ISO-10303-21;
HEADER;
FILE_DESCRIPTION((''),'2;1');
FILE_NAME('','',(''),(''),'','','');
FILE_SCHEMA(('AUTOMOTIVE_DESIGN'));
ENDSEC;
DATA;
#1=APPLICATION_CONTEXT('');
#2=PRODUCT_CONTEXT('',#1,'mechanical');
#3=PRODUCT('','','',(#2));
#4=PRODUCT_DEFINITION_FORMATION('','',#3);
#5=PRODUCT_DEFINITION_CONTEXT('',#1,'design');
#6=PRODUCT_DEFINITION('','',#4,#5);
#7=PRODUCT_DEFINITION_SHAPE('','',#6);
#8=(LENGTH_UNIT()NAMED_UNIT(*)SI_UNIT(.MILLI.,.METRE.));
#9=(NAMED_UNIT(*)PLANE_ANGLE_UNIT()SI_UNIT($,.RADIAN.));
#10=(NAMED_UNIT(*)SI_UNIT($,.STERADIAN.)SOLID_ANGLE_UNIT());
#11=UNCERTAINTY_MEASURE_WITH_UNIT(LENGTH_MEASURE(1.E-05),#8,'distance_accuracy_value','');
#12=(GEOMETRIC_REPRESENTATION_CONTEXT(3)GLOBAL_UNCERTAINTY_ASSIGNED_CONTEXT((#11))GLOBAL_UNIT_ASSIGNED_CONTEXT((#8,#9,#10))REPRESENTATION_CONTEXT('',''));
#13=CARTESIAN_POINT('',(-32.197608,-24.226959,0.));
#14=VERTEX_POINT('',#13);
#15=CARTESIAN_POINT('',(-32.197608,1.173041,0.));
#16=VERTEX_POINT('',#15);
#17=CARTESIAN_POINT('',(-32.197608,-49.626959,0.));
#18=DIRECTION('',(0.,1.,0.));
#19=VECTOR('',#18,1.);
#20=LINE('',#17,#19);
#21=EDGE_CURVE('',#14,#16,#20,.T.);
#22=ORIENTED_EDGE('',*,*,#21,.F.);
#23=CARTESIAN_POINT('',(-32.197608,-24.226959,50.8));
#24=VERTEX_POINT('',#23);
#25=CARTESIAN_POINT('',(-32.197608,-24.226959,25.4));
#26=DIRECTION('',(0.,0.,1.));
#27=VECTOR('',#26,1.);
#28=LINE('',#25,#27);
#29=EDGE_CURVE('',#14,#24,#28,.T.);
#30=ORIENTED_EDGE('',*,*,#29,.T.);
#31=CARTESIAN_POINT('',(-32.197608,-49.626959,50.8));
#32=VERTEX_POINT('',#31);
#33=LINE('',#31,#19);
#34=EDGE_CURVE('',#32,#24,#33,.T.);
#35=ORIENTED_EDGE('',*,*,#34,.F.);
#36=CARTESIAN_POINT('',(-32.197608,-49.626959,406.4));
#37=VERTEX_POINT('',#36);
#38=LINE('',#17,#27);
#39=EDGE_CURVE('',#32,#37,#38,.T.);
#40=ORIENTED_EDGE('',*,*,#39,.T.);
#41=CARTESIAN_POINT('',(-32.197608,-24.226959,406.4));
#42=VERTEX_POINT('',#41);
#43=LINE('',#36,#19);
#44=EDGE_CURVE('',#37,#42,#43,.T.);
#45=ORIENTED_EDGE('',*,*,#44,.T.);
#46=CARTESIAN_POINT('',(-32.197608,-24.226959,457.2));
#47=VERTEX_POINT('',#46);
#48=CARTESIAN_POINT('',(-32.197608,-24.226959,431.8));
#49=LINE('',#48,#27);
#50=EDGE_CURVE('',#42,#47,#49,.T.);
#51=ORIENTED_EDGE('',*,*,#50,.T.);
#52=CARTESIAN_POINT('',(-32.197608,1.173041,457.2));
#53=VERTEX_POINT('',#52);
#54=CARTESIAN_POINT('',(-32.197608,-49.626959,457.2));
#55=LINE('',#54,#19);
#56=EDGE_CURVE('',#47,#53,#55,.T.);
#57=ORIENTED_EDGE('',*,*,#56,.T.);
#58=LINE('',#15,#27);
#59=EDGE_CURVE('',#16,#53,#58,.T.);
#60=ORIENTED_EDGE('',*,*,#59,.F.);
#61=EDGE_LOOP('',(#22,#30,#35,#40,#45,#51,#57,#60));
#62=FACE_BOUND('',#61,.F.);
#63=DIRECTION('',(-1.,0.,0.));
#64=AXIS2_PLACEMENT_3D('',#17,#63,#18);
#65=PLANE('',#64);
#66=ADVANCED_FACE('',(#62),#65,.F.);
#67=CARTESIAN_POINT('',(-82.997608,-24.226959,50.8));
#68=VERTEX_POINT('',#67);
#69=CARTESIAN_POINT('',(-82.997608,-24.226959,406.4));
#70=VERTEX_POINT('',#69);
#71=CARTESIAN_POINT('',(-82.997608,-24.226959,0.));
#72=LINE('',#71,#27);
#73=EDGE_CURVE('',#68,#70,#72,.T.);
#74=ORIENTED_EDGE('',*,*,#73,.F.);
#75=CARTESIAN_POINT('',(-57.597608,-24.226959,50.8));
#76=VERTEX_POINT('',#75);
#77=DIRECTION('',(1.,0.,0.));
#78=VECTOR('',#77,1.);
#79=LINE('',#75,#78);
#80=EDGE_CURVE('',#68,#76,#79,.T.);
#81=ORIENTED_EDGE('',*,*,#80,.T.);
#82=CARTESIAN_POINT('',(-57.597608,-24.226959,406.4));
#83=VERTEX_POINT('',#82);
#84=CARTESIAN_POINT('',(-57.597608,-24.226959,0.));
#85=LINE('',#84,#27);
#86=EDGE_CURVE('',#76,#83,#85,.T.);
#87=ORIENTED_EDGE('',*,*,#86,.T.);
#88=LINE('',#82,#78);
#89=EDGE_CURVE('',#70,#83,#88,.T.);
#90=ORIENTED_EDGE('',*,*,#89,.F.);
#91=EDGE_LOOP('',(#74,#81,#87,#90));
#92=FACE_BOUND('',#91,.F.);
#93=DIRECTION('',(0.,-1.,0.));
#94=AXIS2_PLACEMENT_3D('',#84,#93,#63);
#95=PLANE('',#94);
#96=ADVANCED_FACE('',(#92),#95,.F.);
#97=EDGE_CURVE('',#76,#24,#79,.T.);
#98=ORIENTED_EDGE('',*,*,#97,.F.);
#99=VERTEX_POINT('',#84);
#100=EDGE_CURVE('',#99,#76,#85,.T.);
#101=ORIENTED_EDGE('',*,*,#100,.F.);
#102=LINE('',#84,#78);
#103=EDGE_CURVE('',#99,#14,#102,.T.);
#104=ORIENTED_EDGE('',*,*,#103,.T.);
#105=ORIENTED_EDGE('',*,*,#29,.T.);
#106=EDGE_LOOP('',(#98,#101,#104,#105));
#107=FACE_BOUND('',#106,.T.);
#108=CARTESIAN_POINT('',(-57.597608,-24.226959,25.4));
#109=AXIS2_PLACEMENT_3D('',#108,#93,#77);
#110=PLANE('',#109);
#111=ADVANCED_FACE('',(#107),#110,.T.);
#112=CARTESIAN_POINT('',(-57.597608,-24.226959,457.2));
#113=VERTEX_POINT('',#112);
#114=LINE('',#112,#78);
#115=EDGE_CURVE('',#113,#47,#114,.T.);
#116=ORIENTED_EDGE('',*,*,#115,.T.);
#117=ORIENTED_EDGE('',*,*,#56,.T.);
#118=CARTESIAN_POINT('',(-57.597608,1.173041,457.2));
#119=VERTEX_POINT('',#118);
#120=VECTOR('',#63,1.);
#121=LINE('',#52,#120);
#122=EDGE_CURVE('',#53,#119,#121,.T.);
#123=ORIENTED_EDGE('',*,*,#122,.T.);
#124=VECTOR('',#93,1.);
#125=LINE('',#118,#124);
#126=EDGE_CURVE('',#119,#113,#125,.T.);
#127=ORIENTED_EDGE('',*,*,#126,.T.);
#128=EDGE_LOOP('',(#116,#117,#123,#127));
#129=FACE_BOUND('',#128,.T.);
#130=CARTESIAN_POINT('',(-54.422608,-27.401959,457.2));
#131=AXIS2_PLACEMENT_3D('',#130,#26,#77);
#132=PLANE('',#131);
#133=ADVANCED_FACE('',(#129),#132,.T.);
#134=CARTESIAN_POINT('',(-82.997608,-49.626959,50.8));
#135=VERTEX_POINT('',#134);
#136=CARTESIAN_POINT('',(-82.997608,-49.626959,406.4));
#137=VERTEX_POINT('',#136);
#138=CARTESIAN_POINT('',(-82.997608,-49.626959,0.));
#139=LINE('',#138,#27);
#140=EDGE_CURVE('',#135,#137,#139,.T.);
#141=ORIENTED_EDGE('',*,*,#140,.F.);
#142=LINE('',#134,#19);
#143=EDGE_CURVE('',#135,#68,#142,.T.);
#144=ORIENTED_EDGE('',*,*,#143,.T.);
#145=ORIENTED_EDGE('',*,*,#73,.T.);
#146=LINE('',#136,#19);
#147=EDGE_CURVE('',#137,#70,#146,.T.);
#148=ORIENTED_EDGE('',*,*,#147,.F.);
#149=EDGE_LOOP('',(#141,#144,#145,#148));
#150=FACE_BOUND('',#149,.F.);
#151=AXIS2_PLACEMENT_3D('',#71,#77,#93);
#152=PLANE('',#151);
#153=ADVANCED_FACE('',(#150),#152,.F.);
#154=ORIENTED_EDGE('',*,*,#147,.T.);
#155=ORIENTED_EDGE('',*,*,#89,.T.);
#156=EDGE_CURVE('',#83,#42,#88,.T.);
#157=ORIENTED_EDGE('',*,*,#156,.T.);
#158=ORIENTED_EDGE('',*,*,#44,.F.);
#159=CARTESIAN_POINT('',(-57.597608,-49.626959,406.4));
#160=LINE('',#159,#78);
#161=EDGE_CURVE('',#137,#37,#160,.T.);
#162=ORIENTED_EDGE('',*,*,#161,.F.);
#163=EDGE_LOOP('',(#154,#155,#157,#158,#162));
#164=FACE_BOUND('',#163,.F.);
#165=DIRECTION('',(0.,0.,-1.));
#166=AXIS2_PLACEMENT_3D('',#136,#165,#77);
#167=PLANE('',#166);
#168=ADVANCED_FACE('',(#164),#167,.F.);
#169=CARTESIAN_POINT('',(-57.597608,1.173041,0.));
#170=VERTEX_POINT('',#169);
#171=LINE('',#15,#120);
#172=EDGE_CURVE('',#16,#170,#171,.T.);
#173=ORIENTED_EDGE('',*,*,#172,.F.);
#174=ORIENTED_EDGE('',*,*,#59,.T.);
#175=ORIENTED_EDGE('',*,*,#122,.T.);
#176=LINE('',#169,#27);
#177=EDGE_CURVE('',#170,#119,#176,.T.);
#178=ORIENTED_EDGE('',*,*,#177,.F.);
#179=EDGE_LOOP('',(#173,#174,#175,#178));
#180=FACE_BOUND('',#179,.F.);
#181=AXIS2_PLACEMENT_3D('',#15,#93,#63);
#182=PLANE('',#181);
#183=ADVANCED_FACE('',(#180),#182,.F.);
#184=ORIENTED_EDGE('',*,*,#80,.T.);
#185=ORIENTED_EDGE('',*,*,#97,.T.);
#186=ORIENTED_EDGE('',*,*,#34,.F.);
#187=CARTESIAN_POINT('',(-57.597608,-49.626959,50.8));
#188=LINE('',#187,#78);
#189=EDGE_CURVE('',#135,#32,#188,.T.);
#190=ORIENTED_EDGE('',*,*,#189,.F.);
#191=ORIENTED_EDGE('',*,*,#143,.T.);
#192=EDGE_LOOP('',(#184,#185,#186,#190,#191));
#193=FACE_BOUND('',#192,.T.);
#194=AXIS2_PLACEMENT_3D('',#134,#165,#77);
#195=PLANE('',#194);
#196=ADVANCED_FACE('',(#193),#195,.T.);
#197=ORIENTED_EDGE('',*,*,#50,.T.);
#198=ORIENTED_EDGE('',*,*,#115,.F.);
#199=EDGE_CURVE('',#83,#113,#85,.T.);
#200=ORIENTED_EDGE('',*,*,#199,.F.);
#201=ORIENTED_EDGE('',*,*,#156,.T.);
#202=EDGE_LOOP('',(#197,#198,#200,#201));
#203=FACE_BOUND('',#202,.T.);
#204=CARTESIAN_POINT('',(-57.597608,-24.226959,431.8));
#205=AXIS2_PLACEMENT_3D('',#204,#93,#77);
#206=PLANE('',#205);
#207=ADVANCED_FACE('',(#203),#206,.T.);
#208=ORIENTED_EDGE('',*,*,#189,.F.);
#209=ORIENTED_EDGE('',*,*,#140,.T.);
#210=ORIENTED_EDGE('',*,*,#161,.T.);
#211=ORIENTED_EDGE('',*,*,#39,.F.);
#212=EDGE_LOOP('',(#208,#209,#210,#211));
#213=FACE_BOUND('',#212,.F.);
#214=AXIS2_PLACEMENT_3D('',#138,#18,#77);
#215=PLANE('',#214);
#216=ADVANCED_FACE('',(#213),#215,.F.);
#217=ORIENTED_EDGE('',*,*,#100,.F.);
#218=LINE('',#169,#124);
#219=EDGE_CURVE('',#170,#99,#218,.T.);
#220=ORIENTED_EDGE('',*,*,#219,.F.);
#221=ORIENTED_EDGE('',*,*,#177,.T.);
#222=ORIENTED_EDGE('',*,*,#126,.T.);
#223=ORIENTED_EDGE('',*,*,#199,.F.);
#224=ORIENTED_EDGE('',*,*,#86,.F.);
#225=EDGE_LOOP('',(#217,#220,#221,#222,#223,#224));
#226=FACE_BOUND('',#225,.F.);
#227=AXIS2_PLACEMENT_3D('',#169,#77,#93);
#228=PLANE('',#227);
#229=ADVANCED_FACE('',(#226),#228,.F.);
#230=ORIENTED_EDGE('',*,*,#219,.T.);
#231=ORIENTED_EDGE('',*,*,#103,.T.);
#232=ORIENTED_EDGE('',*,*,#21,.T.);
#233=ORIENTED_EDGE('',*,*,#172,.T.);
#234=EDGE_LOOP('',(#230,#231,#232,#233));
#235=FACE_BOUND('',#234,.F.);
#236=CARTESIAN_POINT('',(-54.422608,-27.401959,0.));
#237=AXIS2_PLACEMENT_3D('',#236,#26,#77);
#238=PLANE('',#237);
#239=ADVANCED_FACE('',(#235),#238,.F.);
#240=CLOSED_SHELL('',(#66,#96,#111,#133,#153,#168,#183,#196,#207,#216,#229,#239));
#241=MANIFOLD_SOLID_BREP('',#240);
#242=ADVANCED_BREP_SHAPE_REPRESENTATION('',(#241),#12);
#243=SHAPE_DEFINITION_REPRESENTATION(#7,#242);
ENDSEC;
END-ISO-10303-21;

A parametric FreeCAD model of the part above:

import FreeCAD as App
import Part
import Sketcher

V = App.Vector
Q = App.Units.Quantity

doc = App.newDocument("Part")
params = doc.addObject("Spreadsheet::Sheet", "Params")
for row, (alias, value) in enumerate([
    ("sketch1_width", "2 in"),
    ("pad1_length", "18 in"),
    ("sketch2_width", "2 in"),
    ("pocket1_length", "1 in"),
], start=1):
    params.set(f"A{row}", alias)
    params.set(f"B{row}", "=" + value)
    params.setAlias(f"B{row}", alias)

body = doc.addObject("PartDesign::Body", "Body")

# Sketch on XY plane
sketch1 = body.newObject("Sketcher::SketchObject", "Sketch")
sketch1.AttachmentSupport = (doc.getObject("XY_Plane"), [""])
sketch1.MapMode = "FlatFace"
sketch1.addGeometry([
    Part.LineSegment(V(-82.997608, -24.226959, 0), V(-82.997608, -49.626959, 0)),  # 0
    Part.LineSegment(V(-82.997608, -49.626959, 0), V(-32.197608, -49.626959, 0)),  # 1
    Part.LineSegment(V(-32.197608, -49.626959, 0), V(-32.197608, 1.173041, 0)),  # 2
    Part.LineSegment(V(-32.197608, 1.173041, 0), V(-57.597608, 1.173041, 0)),  # 3
    Part.LineSegment(V(-57.597608, 1.173041, 0), V(-57.597608, -24.226959, 0)),  # 4
    Part.LineSegment(V(-57.597608, -24.226959, 0), V(-82.997608, -24.226959, 0)),  # 5
], False)
sketch1.addConstraint([
    Sketcher.Constraint("Coincident", 0, 2, 1, 1),
    Sketcher.Constraint("Coincident", 1, 2, 2, 1),
    Sketcher.Constraint("Coincident", 2, 2, 3, 1),
    Sketcher.Constraint("Coincident", 3, 2, 4, 1),
    Sketcher.Constraint("Coincident", 4, 2, 5, 1),
    Sketcher.Constraint("Coincident", 5, 2, 0, 1),
    Sketcher.Constraint("Vertical", 0),
    Sketcher.Constraint("Horizontal", 1),
    Sketcher.Constraint("Vertical", 2),
    Sketcher.Constraint("Horizontal", 3),
    Sketcher.Constraint("Vertical", 4),
    Sketcher.Constraint("Horizontal", 5),
    Sketcher.Constraint("Equal", 3, 5),
    Sketcher.Constraint("Equal", 5, 0),
    Sketcher.Constraint("Equal", 1, 2),
    Sketcher.Constraint("DistanceX", 1, 1, 1, 2, Q("2 in")),
    Sketcher.Constraint("DistanceX", 0, 2, -1, 1, 82.997608),
    Sketcher.Constraint("DistanceY", 0, 2, -1, 1, 49.626959),
])
sketch1.setExpression("Constraints[15]", "Params.sketch1_width")
pad1 = body.newObject("PartDesign::Pad", "Pad")
pad1.Profile = sketch1
pad1.setExpression("Length", "Params.pad1_length")

# Sketch on XZ plane
sketch2 = body.newObject("Sketcher::SketchObject", "Sketch001")
sketch2.AttachmentSupport = (doc.getObject("XZ_Plane"), [""])
sketch2.MapMode = "FlatFace"
sketch2.AttachmentOffset = App.Placement(V(0, 0, 49.626959), App.Rotation())
sketch2.addGeometry([
    Part.LineSegment(V(-82.997608, 457.2, 0), V(-82.997608, 406.4, 0)),  # 0
    Part.LineSegment(V(-82.997608, 406.4, 0), V(-32.197608, 406.4, 0)),  # 1
    Part.LineSegment(V(-32.197608, 406.4, 0), V(-32.197608, 457.2, 0)),  # 2
    Part.LineSegment(V(-32.197608, 457.2, 0), V(-82.997608, 457.2, 0)),  # 3
    Part.LineSegment(V(-82.997608, 50.8, 0), V(-82.997608, 0, 0)),  # 4
    Part.LineSegment(V(-82.997608, 0, 0), V(-32.197608, 0, 0)),  # 5
    Part.LineSegment(V(-32.197608, 0, 0), V(-32.197608, 50.8, 0)),  # 6
    Part.LineSegment(V(-32.197608, 50.8, 0), V(-82.997608, 50.8, 0)),  # 7
], False)
sketch2.addConstraint([
    Sketcher.Constraint("Coincident", 0, 2, 1, 1),
    Sketcher.Constraint("Coincident", 1, 2, 2, 1),
    Sketcher.Constraint("Coincident", 2, 2, 3, 1),
    Sketcher.Constraint("Coincident", 3, 2, 0, 1),
    Sketcher.Constraint("Coincident", 4, 2, 5, 1),
    Sketcher.Constraint("Coincident", 5, 2, 6, 1),
    Sketcher.Constraint("Coincident", 6, 2, 7, 1),
    Sketcher.Constraint("Coincident", 7, 2, 4, 1),
    Sketcher.Constraint("Vertical", 0),
    Sketcher.Constraint("Horizontal", 1),
    Sketcher.Constraint("Vertical", 2),
    Sketcher.Constraint("Horizontal", 3),
    Sketcher.Constraint("Vertical", 4),
    Sketcher.Constraint("Horizontal", 5),
    Sketcher.Constraint("Vertical", 6),
    Sketcher.Constraint("Horizontal", 7),
    Sketcher.Constraint("PointOnObject", 4, 2, -1),
    Sketcher.Constraint("Vertical", 3, 2, 4, 2),
    Sketcher.Constraint("Vertical", 2, 2, 5, 2),
    Sketcher.Constraint("Equal", 7, 0),
    Sketcher.Constraint("Equal", 2, 4),
    Sketcher.Constraint("DistanceX", 1, 1, 1, 2, Q("2 in")),
    Sketcher.Constraint("DistanceY", -1, 1, 0, 2, Q("16 in")),
    Sketcher.Constraint("DistanceX", 0, 2, -1, 1, 82.997608),
])
sketch2.setExpression("Constraints[21]", "Params.sketch2_width")
pocket1 = body.newObject("PartDesign::Pocket", "Pocket")
pocket1.Profile = sketch2
pocket1.setExpression("Length", "Params.pocket1_length")

doc.recompute()
